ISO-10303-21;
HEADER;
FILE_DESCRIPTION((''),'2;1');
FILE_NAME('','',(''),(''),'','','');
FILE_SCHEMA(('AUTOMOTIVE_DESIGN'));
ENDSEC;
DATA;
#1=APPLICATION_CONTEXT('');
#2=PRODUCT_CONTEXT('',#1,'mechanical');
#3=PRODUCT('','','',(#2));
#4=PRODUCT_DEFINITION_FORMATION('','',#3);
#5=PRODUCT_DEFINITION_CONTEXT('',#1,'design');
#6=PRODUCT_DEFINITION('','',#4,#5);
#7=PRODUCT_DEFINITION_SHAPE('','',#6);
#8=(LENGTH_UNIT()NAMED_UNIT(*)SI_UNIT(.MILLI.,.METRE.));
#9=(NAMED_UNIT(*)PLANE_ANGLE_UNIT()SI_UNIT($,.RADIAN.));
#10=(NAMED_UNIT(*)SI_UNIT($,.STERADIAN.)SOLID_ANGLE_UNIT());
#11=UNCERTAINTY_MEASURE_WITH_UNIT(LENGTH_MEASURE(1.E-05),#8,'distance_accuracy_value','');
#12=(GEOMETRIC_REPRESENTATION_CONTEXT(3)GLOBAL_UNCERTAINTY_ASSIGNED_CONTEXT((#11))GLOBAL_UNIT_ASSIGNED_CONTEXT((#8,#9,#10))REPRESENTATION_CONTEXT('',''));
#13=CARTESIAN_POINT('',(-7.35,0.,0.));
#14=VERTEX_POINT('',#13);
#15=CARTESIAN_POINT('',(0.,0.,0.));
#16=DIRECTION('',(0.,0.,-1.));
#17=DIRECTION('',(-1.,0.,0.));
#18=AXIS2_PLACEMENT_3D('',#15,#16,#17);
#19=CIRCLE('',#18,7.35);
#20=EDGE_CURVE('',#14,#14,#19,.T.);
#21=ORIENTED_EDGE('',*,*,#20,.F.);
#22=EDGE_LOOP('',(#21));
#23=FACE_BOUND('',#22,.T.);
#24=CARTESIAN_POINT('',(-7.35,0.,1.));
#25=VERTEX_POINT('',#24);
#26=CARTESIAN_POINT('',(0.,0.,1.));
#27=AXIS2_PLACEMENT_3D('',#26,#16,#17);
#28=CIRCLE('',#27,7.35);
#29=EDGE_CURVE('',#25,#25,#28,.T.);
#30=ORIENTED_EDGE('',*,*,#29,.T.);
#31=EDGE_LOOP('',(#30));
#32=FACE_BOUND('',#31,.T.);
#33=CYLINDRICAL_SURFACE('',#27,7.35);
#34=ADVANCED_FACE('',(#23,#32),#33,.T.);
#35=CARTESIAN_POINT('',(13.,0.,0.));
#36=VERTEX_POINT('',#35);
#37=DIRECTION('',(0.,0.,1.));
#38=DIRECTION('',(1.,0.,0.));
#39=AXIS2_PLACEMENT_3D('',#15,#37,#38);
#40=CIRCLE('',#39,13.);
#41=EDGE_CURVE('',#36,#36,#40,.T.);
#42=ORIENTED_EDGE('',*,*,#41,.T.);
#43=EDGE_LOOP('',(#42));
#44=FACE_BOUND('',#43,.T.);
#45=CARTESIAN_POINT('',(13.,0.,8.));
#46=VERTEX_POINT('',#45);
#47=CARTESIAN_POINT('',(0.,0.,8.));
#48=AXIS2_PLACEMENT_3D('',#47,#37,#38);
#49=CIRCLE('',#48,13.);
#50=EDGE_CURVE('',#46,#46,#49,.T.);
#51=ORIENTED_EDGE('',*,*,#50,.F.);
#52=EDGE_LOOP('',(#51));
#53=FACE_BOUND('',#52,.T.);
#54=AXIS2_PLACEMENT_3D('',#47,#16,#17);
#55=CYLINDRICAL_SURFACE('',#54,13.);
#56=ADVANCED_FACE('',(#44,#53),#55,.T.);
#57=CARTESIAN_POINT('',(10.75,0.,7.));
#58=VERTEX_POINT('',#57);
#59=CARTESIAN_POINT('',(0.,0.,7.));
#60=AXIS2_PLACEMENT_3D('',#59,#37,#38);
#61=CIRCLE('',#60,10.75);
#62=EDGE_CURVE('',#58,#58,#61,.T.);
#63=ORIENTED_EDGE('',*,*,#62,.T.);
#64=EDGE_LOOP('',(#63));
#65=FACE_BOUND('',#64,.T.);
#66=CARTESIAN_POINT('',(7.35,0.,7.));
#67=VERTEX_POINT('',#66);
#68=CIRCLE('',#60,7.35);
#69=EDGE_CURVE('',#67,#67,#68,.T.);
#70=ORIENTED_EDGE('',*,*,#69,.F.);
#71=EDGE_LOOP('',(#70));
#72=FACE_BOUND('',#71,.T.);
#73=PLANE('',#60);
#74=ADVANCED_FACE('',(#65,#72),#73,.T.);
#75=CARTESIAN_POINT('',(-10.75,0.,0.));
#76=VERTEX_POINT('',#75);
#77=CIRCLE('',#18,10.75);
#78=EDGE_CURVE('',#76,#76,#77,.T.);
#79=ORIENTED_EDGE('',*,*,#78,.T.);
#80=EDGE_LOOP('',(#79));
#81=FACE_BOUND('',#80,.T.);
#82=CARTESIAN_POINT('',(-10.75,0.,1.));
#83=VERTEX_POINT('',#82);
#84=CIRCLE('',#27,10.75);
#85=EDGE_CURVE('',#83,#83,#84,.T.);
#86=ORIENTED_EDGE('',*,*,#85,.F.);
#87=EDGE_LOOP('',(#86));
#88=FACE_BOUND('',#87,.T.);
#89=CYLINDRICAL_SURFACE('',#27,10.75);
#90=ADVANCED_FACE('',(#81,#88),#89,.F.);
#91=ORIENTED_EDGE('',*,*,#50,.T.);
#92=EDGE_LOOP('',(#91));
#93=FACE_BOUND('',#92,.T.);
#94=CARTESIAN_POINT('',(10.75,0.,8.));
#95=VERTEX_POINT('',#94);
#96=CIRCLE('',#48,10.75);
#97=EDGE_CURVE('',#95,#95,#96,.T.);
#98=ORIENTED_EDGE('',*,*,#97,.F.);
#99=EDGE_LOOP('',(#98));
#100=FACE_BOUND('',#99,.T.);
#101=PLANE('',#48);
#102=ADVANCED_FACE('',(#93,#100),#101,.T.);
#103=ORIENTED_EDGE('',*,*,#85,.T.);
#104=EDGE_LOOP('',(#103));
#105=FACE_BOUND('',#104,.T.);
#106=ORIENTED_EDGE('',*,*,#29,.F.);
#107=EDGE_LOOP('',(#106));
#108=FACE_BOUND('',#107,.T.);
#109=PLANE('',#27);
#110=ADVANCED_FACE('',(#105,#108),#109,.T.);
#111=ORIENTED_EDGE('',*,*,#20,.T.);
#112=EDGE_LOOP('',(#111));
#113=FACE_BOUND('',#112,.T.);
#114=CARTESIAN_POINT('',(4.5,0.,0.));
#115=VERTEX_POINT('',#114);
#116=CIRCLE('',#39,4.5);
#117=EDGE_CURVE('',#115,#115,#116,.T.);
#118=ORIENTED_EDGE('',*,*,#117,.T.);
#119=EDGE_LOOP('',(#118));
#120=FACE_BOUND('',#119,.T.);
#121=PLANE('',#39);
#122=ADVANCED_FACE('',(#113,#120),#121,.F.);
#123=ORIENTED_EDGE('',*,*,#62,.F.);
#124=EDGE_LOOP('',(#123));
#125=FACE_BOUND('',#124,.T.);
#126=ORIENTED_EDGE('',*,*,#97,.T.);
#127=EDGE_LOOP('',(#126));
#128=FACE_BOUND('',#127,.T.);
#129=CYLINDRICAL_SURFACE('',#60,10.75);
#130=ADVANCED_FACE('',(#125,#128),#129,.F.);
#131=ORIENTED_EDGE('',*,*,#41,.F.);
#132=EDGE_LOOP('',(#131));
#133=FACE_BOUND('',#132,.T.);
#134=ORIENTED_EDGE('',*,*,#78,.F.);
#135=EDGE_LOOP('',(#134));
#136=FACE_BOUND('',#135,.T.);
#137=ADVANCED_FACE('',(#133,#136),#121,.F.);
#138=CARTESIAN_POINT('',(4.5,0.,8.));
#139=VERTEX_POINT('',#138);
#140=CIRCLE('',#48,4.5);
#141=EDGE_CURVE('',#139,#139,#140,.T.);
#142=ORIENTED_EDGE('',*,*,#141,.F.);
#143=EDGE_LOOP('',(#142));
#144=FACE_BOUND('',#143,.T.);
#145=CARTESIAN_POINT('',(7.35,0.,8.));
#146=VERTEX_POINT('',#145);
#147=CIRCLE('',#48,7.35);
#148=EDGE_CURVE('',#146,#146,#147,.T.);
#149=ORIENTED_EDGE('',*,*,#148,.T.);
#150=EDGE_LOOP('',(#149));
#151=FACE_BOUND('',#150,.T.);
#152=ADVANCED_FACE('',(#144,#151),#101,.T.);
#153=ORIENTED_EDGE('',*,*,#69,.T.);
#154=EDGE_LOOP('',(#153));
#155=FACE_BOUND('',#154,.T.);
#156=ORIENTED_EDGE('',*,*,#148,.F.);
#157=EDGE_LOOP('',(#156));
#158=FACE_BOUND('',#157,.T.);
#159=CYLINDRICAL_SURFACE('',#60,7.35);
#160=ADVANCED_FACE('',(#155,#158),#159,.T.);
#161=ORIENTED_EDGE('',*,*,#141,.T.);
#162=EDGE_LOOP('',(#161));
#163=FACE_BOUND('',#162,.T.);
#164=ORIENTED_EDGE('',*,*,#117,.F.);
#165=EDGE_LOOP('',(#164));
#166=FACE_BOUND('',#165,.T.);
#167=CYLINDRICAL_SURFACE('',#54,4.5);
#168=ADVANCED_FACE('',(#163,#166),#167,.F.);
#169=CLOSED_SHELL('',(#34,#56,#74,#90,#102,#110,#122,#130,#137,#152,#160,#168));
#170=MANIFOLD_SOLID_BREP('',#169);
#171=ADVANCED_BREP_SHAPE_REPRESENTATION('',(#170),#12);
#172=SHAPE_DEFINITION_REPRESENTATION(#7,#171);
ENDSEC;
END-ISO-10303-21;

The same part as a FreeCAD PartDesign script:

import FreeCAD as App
import Part
import Sketcher

doc = App.newDocument("Part")
body = doc.addObject("PartDesign::Body", "Body")

# Sketch on XY plane
sketch1 = body.newObject("Sketcher::SketchObject", "Sketch")
sketch1.AttachmentSupport = (doc.getObject("XY_Plane"), [""])
sketch1.MapMode = "FlatFace"
sketch1.addGeometry(Part.Circle(App.Vector(0, 0, 0), App.Vector(0, 0, 1), 13), False)
sketch1.addGeometry(Part.Circle(App.Vector(0, 0, 0), App.Vector(0, 0, 1), 4.5), False)
sketch1.addConstraint(Sketcher.Constraint("Coincident", 0, 3, -1, 1))
sketch1.addConstraint(Sketcher.Constraint("Coincident", 1, 3, -1, 1))
sketch1.addConstraint(Sketcher.Constraint("Diameter", 0, 26.0))
sketch1.addConstraint(Sketcher.Constraint("Diameter", 1, 9.0))
pad1 = body.newObject("PartDesign::Pad", "Pad")
pad1.Profile = sketch1
pad1.Length = 8

# Sketch on XY plane
sketch2 = body.newObject("Sketcher::SketchObject", "Sketch001")
sketch2.AttachmentSupport = (doc.getObject("XY_Plane"), [""])
sketch2.MapMode = "FlatFace"
sketch2.AttachmentOffset = App.Placement(App.Vector(0, 0, 8), App.Rotation())
sketch2.addGeometry(Part.Circle(App.Vector(0, 0, 0), App.Vector(0, 0, 1), 10.75), False)
sketch2.addGeometry(Part.Circle(App.Vector(0, 0, 0), App.Vector(0, 0, 1), 7.35), False)
sketch2.addConstraint(Sketcher.Constraint("Coincident", 0, 3, -1, 1))
sketch2.addConstraint(Sketcher.Constraint("Coincident", 1, 3, -1, 1))
sketch2.addConstraint(Sketcher.Constraint("Diameter", 0, 21.5))
sketch2.addConstraint(Sketcher.Constraint("Diameter", 1, 14.7))
pocket1 = body.newObject("PartDesign::Pocket", "Pocket")
pocket1.Profile = sketch2
pocket1.Length = 1

# Sketch on XY plane
sketch3 = body.newObject("Sketcher::SketchObject", "Sketch002")
sketch3.AttachmentSupport = (doc.getObject("XY_Plane"), [""])
sketch3.MapMode = "FlatFace"
sketch3.AttachmentOffset = App.Placement(App.Vector(0, 0, 1), App.Rotation())
sketch3.addGeometry(Part.Circle(App.Vector(0, 0, 0), App.Vector(0, 0, 1), 10.75), False)
sketch3.addGeometry(Part.Circle(App.Vector(0, 0, 0), App.Vector(0, 0, 1), 7.35), False)
sketch3.addConstraint(Sketcher.Constraint("Coincident", 0, 3, -1, 1))
sketch3.addConstraint(Sketcher.Constraint("Coincident", 1, 3, -1, 1))
sketch3.addConstraint(Sketcher.Constraint("Diameter", 0, 21.5))
sketch3.addConstraint(Sketcher.Constraint("Diameter", 1, 14.7))
pocket2 = body.newObject("PartDesign::Pocket", "Pocket001")
pocket2.Profile = sketch3
pocket2.Length = 1

doc.recompute()
